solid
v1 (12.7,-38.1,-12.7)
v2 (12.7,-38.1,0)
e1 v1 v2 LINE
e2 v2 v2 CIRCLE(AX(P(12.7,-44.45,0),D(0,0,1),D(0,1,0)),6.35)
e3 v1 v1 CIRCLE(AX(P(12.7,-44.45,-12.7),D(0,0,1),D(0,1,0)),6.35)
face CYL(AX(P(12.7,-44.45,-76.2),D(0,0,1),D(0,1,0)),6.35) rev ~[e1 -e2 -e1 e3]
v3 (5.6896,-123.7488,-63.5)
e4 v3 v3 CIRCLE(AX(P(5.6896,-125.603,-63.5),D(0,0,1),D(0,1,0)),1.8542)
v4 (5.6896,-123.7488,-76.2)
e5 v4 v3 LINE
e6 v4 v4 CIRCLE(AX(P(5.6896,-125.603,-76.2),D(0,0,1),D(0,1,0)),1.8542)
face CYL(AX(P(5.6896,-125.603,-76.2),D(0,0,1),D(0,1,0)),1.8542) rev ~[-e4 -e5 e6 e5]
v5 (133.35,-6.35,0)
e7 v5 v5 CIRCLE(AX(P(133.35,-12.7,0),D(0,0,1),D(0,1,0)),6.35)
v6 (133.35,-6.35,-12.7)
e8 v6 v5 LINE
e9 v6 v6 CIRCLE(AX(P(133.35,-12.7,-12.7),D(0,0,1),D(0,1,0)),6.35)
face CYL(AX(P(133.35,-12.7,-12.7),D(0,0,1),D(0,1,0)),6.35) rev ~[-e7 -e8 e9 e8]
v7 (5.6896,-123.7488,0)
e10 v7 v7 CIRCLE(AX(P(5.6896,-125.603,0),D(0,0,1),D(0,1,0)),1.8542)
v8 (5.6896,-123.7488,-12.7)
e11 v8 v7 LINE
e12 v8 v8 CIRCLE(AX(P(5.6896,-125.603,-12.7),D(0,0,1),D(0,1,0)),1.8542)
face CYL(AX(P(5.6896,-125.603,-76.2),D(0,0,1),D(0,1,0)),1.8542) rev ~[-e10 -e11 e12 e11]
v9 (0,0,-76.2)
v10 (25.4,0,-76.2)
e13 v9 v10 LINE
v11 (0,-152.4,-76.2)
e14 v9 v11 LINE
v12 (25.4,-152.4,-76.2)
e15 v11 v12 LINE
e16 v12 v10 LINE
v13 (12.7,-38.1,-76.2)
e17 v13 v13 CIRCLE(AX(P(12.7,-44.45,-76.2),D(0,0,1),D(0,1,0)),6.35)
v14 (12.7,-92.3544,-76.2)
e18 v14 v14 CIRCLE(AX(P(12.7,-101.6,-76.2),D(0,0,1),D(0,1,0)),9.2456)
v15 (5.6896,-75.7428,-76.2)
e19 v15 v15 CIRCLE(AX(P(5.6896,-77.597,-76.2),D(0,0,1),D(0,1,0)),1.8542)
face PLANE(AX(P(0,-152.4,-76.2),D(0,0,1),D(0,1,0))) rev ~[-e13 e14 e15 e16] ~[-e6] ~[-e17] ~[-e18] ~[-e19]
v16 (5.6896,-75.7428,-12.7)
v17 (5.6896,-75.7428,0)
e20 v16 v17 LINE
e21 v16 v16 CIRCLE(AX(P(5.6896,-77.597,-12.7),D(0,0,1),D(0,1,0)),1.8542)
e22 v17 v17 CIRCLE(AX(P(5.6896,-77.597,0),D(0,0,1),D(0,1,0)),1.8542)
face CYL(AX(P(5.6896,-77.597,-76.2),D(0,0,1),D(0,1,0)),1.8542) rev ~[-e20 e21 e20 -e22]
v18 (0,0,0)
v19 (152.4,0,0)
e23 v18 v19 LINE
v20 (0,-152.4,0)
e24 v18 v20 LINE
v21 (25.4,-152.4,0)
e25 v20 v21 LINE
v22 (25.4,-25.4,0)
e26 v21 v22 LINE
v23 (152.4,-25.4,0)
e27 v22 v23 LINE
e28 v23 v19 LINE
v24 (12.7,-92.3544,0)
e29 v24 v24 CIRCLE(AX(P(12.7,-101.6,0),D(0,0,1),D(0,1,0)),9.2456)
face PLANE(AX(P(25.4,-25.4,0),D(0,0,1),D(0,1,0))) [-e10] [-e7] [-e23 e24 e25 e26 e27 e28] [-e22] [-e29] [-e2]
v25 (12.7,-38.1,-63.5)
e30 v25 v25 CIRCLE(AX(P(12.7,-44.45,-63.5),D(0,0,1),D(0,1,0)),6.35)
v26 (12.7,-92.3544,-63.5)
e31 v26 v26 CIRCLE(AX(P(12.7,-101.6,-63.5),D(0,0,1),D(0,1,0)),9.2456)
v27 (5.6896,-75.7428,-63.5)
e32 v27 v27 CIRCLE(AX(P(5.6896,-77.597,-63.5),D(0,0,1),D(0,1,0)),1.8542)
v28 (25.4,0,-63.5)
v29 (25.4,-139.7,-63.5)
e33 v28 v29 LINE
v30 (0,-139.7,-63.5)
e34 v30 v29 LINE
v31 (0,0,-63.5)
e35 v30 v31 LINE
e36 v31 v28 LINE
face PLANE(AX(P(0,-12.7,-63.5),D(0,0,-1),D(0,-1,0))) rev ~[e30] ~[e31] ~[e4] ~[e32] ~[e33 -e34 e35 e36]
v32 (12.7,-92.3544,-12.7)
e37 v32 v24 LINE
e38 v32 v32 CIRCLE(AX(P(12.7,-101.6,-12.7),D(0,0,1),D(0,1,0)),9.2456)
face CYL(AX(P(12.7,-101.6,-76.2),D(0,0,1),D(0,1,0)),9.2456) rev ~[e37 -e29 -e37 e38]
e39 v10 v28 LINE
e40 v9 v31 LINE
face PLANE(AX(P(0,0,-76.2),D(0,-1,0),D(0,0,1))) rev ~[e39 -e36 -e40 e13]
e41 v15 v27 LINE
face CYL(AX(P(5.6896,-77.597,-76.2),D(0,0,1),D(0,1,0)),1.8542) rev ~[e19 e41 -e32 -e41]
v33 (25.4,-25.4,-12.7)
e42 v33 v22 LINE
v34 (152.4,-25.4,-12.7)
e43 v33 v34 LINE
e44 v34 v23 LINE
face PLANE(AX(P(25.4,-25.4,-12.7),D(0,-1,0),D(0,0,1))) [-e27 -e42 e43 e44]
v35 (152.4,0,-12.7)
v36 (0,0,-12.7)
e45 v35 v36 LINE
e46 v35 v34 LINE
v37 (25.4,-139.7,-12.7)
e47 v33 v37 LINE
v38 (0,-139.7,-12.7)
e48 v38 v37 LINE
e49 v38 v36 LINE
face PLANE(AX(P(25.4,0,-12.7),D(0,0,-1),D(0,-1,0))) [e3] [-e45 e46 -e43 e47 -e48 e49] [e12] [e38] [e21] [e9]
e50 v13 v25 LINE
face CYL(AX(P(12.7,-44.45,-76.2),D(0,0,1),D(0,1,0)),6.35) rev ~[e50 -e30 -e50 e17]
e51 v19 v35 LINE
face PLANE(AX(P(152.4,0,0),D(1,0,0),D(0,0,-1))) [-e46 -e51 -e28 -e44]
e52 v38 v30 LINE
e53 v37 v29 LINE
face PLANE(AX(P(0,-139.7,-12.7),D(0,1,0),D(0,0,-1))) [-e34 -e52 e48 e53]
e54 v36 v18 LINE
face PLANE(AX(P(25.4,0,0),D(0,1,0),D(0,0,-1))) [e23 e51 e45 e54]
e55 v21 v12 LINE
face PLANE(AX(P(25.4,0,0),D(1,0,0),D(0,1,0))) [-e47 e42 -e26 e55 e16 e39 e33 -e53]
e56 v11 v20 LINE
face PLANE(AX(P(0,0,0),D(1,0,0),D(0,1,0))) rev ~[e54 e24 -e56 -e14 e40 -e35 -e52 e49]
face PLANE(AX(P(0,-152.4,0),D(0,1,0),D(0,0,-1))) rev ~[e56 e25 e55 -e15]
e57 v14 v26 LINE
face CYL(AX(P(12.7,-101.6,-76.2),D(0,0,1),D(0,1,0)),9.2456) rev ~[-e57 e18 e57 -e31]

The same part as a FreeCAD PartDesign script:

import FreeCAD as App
import Part
import Sketcher

V = App.Vector
Q = App.Units.Quantity

doc = App.newDocument("Part")
body = doc.addObject("PartDesign::Body", "Body")

sketch1 = body.newObject("Sketcher::SketchObject", "Sketch")
sketch1.AttachmentSupport = (doc.getObject("YZ_Plane"), [""])
sketch1.MapMode = "FlatFace"
sketch1.addGeometry(Part.LineSegment(V(0, -12.7, 0), V(0, 0, 0)), False)
sketch1.addGeometry(Part.LineSegment(V(0, 0, 0), V(-152.4, 0, 0)), False)
sketch1.addGeometry(Part.LineSegment(V(-152.4, 0, 0), V(-152.4, -76.2, 0)), False)
sketch1.addGeometry(Part.LineSegment(V(-152.4, -76.2, 0), V(0, -76.2, 0)), False)
sketch1.addGeometry(Part.LineSegment(V(0, -76.2, 0), V(0, -63.5, 0)), False)
sketch1.addGeometry(Part.LineSegment(V(0, -63.5, 0), V(-139.7, -63.5, 0)), False)
sketch1.addGeometry(Part.LineSegment(V(-139.7, -63.5, 0), V(-139.7, -12.7, 0)), False)
sketch1.addGeometry(Part.LineSegment(V(-139.7, -12.7, 0), V(0, -12.7, 0)), False)
sketch1.addConstraint(Sketcher.Constraint("Coincident", 0, 2, 1, 1))
sketch1.addConstraint(Sketcher.Constraint("Coincident", 1, 2, 2, 1))
sketch1.addConstraint(Sketcher.Constraint("Coincident", 2, 2, 3, 1))
sketch1.addConstraint(Sketcher.Constraint("Coincident", 3, 2, 4, 1))
sketch1.addConstraint(Sketcher.Constraint("Coincident", 4, 2, 5, 1))
sketch1.addConstraint(Sketcher.Constraint("Coincident", 5, 2, 6, 1))
sketch1.addConstraint(Sketcher.Constraint("Coincident", 6, 2, 7, 1))
sketch1.addConstraint(Sketcher.Constraint("Coincident", 7, 2, 0, 1))
sketch1.addConstraint(Sketcher.Constraint("Vertical", 0))
sketch1.addConstraint(Sketcher.Constraint("Horizontal", 1))
sketch1.addConstraint(Sketcher.Constraint("Vertical", 2))
sketch1.addConstraint(Sketcher.Constraint("Horizontal", 3))
sketch1.addConstraint(Sketcher.Constraint("Vertical", 4))
sketch1.addConstraint(Sketcher.Constraint("Horizontal", 5))
sketch1.addConstraint(Sketcher.Constraint("Vertical", 6))
sketch1.addConstraint(Sketcher.Constraint("Horizontal", 7))
sketch1.addConstraint(Sketcher.Constraint("Coincident", 0, 2, -1, 1))
sketch1.addConstraint(Sketcher.Constraint("PointOnObject", 3, 2, -2))
sketch1.addConstraint(Sketcher.Constraint("Equal", 0, 4))
sketch1.addConstraint(Sketcher.Constraint("DistanceX", 1, 2, 1, 1, Q("6 in")))
sketch1.addConstraint(Sketcher.Constraint("DistanceY", 6, 1, 6, 2, Q("2 in")))
sketch1.addConstraint(Sketcher.Constraint("DistanceY", 0, 1, 0, 2, Q("0.5 in")))
sketch1.addConstraint(Sketcher.Constraint("DistanceX", 2, 2, 5, 2, Q("0.5 in")))
pad1 = body.newObject("PartDesign::Pad", "Pad")
pad1.Profile = sketch1
pad1.Length = Q("1 in")

sketch2 = body.newObject("Sketcher::SketchObject", "Sketch001")
sketch2.AttachmentSupport = (doc.getObject("XY_Plane"), [""])
sketch2.MapMode = "FlatFace"
sketch2.AttachmentOffset = App.Placement(V(0, 0, -3 * 25.4), App.Rotation())
sketch2.addGeometry(Part.Circle(V(12.7, -44.45, 0), V(0, 0, 1), 6.35), False)
sketch2.addConstraint(Sketcher.Constraint("Diameter", 0, Q("0.5 in")))
sketch2.addConstraint(Sketcher.Constraint("DistanceX", -1, 1, 0, 3, Q("0.5 in")))
sketch2.addConstraint(Sketcher.Constraint("DistanceY", 0, 3, -1, 1, Q("1.75 in")))
doc.recompute()
hole = body.newObject("PartDesign::Hole", "Hole")
hole.Profile = sketch2
hole.ThreadType = "None"
hole.Diameter = Q("0.5 in")
hole.DepthType = "ThroughAll"
hole.Reversed = True

sketch3 = body.newObject("Sketcher::SketchObject", "Sketch002")
sketch3.AttachmentSupport = (doc.getObject("XY_Plane"), [""])
sketch3.MapMode = "FlatFace"
sketch3.AttachmentOffset = App.Placement(V(0, 0, -3 * 25.4), App.Rotation())
sketch3.addGeometry(Part.Circle(V(12.7, -101.6, 0), V(0, 0, 1), 9.2456), False)
sketch3.addConstraint(Sketcher.Constraint("Diameter", 0, Q("0.728 in")))
sketch3.addConstraint(Sketcher.Constraint("DistanceY", 0, 3, -1, 1, Q("4 in")))
sketch3.addConstraint(Sketcher.Constraint("DistanceX", -1, 1, 0, 3, Q("0.5 in")))
doc.recompute()
hole2 = body.newObject("PartDesign::Hole", "Hole001")
hole2.Profile = sketch3
hole2.ThreadType = "None"
hole2.Diameter = Q("0.728 in")
hole2.DepthType = "ThroughAll"
hole2.Reversed = True

sketch4 = body.newObject("Sketcher::SketchObject", "Sketch003")
sketch4.AttachmentSupport = (doc.getObject("XY_Plane"), [""])
sketch4.MapMode = "FlatFace"
sketch4.AttachmentOffset = App.Placement(V(0, 0, -3 * 25.4), App.Rotation())
sketch4.addGeometry(Part.Circle(V(5.6896, -125.603, 0), V(0, 0, 1), 1.8542), False)
sketch4.addGeometry(Part.Circle(V(5.6896, -77.597, 0), V(0, 0, 1), 1.8542), False)
sketch4.addConstraint(Sketcher.Constraint("Equal", 0, 1))
sketch4.addConstraint(Sketcher.Constraint("Vertical", 0, 3, 1, 3))
sketch4.addConstraint(Sketcher.Constraint("Diameter", 0, Q("0.146 in")))
sketch4.addConstraint(Sketcher.Constraint("DistanceY", 0, 3, 1, 3, Q("1.89 in")))
sketch4.addConstraint(Sketcher.Constraint("DistanceX", -1, 1, 0, 3, Q("0.224 in")))
sketch4.addConstraint(Sketcher.Constraint("DistanceY", 0, 3, -1, 1, Q("4.945 in")))
doc.recompute()
hole3 = body.newObject("PartDesign::Hole", "Hole002")
hole3.Profile = sketch4
hole3.ThreadType = "None"
hole3.Diameter = Q("0.146 in")
hole3.DepthType = "ThroughAll"
hole3.Reversed = True

sketch5 = body.newObject("Sketcher::SketchObject", "Sketch004")
sketch5.AttachmentSupport = (doc.getObject("YZ_Plane"), [""])
sketch5.MapMode = "FlatFace"
sketch5.AttachmentOffset = App.Placement(V(0, 0, 1 * 25.4), App.Rotation())
sketch5.addGeometry(Part.LineSegment(V(0, -12.7, 0), V(0, 0, 0)), False)
sketch5.addGeometry(Part.LineSegment(V(0, 0, 0), V(-25.4, 0, 0)), False)
sketch5.addGeometry(Part.LineSegment(V(-25.4, 0, 0), V(-25.4, -12.7, 0)), False)
sketch5.addGeometry(Part.LineSegment(V(-25.4, -12.7, 0), V(0, -12.7, 0)), False)
sketch5.addConstraint(Sketcher.Constraint("Coincident", 0, 2, 1, 1))
sketch5.addConstraint(Sketcher.Constraint("Coincident", 1, 2, 2, 1))
sketch5.addConstraint(Sketcher.Constraint("Coincident", 2, 2, 3, 1))
sketch5.addConstraint(Sketcher.Constraint("Coincident", 3, 2, 0, 1))
sketch5.addConstraint(Sketcher.Constraint("Vertical", 0))
sketch5.addConstraint(Sketcher.Constraint("Horizontal", 1))
sketch5.addConstraint(Sketcher.Constraint("Vertical", 2))
sketch5.addConstraint(Sketcher.Constraint("Horizontal", 3))
sketch5.addConstraint(Sketcher.Constraint("Coincident", 0, 2, -1, 1))
sketch5.addConstraint(Sketcher.Constraint("DistanceX", 1, 2, 1, 1, Q("1 in")))
sketch5.addConstraint(Sketcher.Constraint("DistanceY", 0, 1, 0, 2, Q("0.5 in")))
pad2 = body.newObject("PartDesign::Pad", "Pad001")
pad2.Profile = sketch5
pad2.Length = Q("5 in")

sketch6 = body.newObject("Sketcher::SketchObject", "Sketch005")
sketch6.AttachmentSupport = (doc.getObject("XY_Plane"), [""])
sketch6.MapMode = "FlatFace"
sketch6.AttachmentOffset = App.Placement(V(0, 0, -0.5 * 25.4), App.Rotation())
sketch6.addGeometry(Part.Circle(V(133.35, -12.7, 0), V(0, 0, 1), 6.35), False)
sketch6.addConstraint(Sketcher.Constraint("Diameter", 0, Q("0.5 in")))
sketch6.addConstraint(Sketcher.Constraint("DistanceY", 0, 3, -1, 1, Q("0.5 in")))
sketch6.addConstraint(Sketcher.Constraint("DistanceX", -1, 1, 0, 3, Q("5.25 in")))
doc.recompute()
hole4 = body.newObject("PartDesign::Hole", "Hole003")
hole4.Profile = sketch6
hole4.ThreadType = "None"
hole4.Diameter = Q("0.5 in")
hole4.DepthType = "ThroughAll"
hole4.Reversed = True

doc.recompute()
